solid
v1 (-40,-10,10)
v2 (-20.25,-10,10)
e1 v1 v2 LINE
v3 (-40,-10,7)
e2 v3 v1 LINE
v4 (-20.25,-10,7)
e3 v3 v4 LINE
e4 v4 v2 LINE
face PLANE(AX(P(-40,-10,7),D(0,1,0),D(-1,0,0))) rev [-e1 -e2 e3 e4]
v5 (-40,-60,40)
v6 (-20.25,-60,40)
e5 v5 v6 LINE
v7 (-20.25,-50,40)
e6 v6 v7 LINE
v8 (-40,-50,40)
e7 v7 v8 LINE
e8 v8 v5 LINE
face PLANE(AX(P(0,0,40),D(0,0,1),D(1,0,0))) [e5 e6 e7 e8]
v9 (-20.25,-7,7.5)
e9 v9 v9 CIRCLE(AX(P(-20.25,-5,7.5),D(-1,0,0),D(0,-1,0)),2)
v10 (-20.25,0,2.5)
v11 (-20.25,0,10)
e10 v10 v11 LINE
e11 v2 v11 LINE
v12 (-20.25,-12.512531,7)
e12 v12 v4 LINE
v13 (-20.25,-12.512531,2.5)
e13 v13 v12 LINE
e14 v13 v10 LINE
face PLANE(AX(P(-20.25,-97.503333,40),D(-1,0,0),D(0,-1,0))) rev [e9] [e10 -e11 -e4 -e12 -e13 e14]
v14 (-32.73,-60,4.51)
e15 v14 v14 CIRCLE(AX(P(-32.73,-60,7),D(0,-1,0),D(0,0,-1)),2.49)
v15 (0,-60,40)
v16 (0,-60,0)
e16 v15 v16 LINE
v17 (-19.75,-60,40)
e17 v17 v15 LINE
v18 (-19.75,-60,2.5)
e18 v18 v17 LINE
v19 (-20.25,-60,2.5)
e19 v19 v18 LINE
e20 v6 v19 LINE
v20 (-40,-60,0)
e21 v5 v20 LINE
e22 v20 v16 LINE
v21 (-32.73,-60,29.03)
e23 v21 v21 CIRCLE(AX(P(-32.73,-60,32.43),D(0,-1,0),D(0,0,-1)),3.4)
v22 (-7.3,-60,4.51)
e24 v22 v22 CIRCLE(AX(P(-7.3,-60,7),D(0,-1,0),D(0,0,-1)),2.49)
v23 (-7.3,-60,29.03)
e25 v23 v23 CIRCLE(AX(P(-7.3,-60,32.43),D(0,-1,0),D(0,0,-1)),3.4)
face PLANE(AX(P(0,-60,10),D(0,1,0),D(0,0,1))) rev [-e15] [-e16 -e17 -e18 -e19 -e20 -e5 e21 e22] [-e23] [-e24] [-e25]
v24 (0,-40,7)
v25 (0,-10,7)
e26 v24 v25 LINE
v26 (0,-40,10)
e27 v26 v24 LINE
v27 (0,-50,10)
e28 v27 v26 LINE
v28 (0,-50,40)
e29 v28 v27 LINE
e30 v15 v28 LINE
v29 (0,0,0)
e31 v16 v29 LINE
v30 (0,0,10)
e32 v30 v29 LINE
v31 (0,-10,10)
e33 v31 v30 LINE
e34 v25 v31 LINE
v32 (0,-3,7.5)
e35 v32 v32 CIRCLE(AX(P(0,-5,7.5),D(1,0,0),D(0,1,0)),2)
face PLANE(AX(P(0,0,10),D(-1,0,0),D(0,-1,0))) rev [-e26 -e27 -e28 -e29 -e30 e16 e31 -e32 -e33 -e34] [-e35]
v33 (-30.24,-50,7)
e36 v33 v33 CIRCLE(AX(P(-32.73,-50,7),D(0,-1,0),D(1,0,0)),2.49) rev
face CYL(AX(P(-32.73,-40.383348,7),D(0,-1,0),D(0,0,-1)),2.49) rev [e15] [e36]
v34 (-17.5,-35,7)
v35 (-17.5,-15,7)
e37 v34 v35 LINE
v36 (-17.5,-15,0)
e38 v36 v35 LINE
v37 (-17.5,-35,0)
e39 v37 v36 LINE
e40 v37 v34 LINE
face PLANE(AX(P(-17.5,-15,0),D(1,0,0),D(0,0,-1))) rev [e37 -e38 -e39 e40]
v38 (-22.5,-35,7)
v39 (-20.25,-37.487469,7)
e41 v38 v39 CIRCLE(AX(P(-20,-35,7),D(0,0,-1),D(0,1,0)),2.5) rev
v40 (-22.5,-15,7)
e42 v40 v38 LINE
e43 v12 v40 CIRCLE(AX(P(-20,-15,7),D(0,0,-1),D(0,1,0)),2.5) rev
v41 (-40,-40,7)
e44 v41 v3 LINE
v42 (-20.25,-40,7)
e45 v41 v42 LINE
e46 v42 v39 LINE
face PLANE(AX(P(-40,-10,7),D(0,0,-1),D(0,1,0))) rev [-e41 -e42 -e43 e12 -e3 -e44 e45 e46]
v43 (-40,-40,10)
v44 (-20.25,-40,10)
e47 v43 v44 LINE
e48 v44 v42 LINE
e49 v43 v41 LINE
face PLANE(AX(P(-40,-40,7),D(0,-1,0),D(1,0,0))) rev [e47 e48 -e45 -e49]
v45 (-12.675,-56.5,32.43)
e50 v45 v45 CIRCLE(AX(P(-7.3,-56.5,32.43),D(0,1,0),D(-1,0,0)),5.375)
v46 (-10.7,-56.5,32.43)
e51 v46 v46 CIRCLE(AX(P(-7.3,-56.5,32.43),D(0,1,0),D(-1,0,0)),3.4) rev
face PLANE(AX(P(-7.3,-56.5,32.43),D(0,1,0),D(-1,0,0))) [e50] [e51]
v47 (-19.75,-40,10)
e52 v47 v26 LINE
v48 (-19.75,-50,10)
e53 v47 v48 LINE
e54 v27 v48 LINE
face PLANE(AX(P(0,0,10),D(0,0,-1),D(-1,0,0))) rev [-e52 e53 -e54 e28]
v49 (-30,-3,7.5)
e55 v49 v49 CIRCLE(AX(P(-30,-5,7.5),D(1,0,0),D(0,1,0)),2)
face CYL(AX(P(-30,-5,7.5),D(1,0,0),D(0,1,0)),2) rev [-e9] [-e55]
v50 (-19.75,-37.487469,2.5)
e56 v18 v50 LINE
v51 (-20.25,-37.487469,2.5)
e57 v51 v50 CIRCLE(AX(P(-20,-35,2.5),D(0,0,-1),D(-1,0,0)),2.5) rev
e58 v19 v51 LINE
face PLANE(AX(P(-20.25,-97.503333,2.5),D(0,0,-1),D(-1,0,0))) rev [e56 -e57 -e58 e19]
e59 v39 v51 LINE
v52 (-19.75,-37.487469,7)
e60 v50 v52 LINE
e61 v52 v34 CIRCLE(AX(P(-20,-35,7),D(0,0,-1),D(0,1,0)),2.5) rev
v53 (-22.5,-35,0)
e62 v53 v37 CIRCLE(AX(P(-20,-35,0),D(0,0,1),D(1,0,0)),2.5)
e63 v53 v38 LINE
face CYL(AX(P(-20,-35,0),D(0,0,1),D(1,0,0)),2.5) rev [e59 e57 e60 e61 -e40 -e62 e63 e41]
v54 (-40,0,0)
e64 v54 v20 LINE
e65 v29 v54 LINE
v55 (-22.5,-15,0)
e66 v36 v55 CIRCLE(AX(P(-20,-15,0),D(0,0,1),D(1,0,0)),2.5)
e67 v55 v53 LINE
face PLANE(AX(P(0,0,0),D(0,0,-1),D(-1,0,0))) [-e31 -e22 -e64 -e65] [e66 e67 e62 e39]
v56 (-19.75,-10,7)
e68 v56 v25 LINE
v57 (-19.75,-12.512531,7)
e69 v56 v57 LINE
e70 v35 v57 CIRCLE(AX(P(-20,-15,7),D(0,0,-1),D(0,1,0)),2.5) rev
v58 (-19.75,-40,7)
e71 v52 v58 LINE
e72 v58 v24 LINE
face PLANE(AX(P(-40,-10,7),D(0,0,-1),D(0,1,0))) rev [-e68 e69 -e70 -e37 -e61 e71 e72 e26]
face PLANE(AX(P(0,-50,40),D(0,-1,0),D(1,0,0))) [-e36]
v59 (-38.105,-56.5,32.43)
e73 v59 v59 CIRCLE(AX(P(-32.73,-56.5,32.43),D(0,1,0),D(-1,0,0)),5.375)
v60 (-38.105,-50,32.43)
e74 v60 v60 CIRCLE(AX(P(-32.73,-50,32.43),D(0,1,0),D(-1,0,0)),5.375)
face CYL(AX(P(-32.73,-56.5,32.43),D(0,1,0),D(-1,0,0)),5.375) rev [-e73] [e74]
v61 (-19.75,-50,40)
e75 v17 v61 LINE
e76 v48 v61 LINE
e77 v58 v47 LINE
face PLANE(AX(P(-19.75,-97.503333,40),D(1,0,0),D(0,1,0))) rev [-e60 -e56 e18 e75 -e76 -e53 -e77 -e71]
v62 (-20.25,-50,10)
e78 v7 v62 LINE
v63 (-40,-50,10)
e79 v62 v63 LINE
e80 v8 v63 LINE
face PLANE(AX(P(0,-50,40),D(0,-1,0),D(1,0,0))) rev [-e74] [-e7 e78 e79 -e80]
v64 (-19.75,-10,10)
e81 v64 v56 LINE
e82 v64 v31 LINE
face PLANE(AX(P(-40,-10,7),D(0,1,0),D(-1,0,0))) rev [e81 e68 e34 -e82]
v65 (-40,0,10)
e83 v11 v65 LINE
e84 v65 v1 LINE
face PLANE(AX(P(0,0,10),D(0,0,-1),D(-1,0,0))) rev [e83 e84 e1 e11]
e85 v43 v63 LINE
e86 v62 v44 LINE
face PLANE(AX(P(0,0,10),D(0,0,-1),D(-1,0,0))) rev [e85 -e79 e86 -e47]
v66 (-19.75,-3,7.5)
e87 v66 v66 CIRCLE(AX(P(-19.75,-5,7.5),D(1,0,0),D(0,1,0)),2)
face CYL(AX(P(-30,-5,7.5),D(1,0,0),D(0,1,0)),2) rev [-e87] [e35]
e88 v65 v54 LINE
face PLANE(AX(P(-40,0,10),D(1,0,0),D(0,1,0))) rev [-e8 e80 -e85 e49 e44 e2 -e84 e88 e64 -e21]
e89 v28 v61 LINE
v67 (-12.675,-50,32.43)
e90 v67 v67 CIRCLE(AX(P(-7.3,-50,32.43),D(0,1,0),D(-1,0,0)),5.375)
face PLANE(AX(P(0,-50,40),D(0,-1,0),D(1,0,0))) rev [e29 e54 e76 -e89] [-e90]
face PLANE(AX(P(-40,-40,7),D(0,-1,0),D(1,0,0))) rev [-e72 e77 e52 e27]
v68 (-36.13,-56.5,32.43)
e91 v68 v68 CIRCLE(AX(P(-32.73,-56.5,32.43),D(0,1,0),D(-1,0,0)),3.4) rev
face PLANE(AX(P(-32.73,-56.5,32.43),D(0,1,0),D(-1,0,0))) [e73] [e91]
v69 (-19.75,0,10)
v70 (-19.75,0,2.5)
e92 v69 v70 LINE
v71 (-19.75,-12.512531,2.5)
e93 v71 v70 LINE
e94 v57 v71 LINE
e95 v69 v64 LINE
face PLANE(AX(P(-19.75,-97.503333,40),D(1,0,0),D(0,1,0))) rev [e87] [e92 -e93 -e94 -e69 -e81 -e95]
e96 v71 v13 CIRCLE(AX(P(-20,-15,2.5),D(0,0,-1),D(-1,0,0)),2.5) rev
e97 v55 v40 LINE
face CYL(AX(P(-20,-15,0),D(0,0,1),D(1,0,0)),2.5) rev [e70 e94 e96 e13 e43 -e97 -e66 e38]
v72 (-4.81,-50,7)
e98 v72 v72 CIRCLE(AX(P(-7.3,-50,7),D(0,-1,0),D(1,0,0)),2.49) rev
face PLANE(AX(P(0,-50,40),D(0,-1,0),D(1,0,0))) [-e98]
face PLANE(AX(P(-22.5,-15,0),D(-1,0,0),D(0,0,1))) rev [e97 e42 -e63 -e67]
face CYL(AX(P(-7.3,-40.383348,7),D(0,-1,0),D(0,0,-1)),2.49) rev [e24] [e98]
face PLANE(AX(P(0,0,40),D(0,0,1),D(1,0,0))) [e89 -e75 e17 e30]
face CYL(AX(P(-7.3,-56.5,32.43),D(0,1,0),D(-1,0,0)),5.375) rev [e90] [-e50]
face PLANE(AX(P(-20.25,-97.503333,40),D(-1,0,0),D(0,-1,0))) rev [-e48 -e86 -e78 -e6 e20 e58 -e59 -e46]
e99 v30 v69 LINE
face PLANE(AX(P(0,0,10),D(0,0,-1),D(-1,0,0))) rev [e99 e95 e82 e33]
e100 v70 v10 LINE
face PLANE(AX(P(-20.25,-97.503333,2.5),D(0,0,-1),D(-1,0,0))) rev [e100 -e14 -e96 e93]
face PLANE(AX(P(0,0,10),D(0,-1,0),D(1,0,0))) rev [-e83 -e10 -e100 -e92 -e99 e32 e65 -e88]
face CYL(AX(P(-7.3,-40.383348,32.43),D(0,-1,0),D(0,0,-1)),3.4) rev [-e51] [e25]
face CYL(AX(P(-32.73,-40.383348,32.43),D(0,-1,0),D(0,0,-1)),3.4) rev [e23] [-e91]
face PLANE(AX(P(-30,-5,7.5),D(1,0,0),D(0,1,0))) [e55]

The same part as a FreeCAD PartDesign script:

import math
import FreeCAD as App
import Part
import Sketcher
Q = App.Units.Quantity


def add_polygon(sketch, points):
    """Adds a closed chain of lines whose ends are joined by coincident constraints."""
    first, n = sketch.GeometryCount, len(points)
    for a, b in zip(points, points[1:] + points[:1]):
        sketch.addGeometry(Part.LineSegment(App.Vector(*a, 0), App.Vector(*b, 0)), False)
    for i in range(n):
        sketch.addConstraint(Sketcher.Constraint("Coincident", first + i, 2, first + (i + 1) % n, 1))

doc = App.newDocument("Part")
body = doc.addObject("PartDesign::Body", "Body")

# Sketch on XY plane
sketch1 = body.newObject("Sketcher::SketchObject", "Sketch")
sketch1.AttachmentSupport = (doc.getObject("XY_Plane"), [""])
sketch1.MapMode = "FlatFace"
add_polygon(sketch1, [(-40, 0), (-40, -60), (0, -60), (0, 0)])  # lines 0-3
sketch1.addConstraint([
    Sketcher.Constraint("Vertical", 0),
    Sketcher.Constraint("Horizontal", 1),
    Sketcher.Constraint("Vertical", 2),
    Sketcher.Constraint("Horizontal", 3),
    Sketcher.Constraint("Coincident", 2, 2, -1, 1),
    Sketcher.Constraint("DistanceX", 1, 1, 1, 2, Q("40 mm")),
    Sketcher.Constraint("DistanceY", 0, 2, 0, 1, Q("60 mm")),
])
pad1 = body.newObject("PartDesign::Pad", "Pad")
pad1.Profile = sketch1
pad1.Length = 10

# Sketch on XY plane
sketch2 = body.newObject("Sketcher::SketchObject", "Sketch001")
sketch2.AttachmentSupport = (doc.getObject("XY_Plane"), [""])
sketch2.MapMode = "FlatFace"
sketch2.AttachmentOffset = App.Placement(App.Vector(0, 0, 10), App.Rotation())
sketch2.addGeometry([
    Part.LineSegment(App.Vector(-17.5, -35, 0), App.Vector(-17.5, -15, 0)),
    Part.ArcOfCircle(Part.Circle(App.Vector(-20, -15, 0), App.Vector(0, 0, 1), 2.5), math.radians(0), math.radians(180)),
    Part.LineSegment(App.Vector(-22.5, -15, 0), App.Vector(-22.5, -35, 0)),
    Part.ArcOfCircle(Part.Circle(App.Vector(-20, -35, 0), App.Vector(0, 0, 1), 2.5), math.radians(180), math.radians(360)),
], False)
sketch2.addConstraint([
    Sketcher.Constraint("Tangent", 0, 2, 1, 1),
    Sketcher.Constraint("Tangent", 1, 2, 2, 1),
    Sketcher.Constraint("Tangent", 2, 2, 3, 1),
    Sketcher.Constraint("Tangent", 3, 2, 0, 1),
    Sketcher.Constraint("Vertical", 0),
    Sketcher.Constraint("Vertical", 2),
    Sketcher.Constraint("Radius", 1, Q("2.5 mm")),
    Sketcher.Constraint("DistanceY", 0, 1, 0, 2, Q("20 mm")),
    Sketcher.Constraint("DistanceX", 1, 3, -1, 1, Q("20 mm")),
    Sketcher.Constraint("DistanceY", 1, 3, -1, 1, Q("15 mm")),
])
pocket1 = body.newObject("PartDesign::Pocket", "Pocket")
pocket1.Profile = sketch2
pocket1.Type = "ThroughAll"

# Sketch on YZ plane
sketch3 = body.newObject("Sketcher::SketchObject", "Sketch002")
sketch3.AttachmentSupport = (doc.getObject("YZ_Plane"), [""])
sketch3.MapMode = "FlatFace"
add_polygon(sketch3, [(-10, 10), (-40, 10), (-40, 7), (-10, 7)])  # lines 0-3
sketch3.addConstraint([
    Sketcher.Constraint("Horizontal", 0),
    Sketcher.Constraint("Vertical", 1),
    Sketcher.Constraint("Horizontal", 2),
    Sketcher.Constraint("Vertical", 3),
    Sketcher.Constraint("DistanceX", 0, 2, 0, 1, Q("30 mm")),
    Sketcher.Constraint("DistanceY", 1, 2, 1, 1, Q("3 mm")),
    Sketcher.Constraint("DistanceX", 0, 2, -1, 1, Q("40 mm")),
    Sketcher.Constraint("DistanceY", -1, 1, 0, 2, Q("10 mm")),
])
pocket2 = body.newObject("PartDesign::Pocket", "Pocket001")
pocket2.Profile = sketch3
pocket2.Type = "ThroughAll"

# Sketch on XY plane
sketch4 = body.newObject("Sketcher::SketchObject", "Sketch003")
sketch4.AttachmentSupport = (doc.getObject("XY_Plane"), [""])
sketch4.MapMode = "FlatFace"
sketch4.AttachmentOffset = App.Placement(App.Vector(0, 0, 10), App.Rotation())
add_polygon(sketch4, [(-40, -50), (-40, -60), (0, -60), (0, -50)])  # lines 0-3
sketch4.addConstraint([
    Sketcher.Constraint("Vertical", 0),
    Sketcher.Constraint("Horizontal", 1),
    Sketcher.Constraint("Vertical", 2),
    Sketcher.Constraint("Horizontal", 3),
    Sketcher.Constraint("PointOnObject", 1, 2, -2),
    Sketcher.Constraint("DistanceX", 1, 1, 1, 2, Q("40 mm")),
    Sketcher.Constraint("DistanceY", 0, 2, 0, 1, Q("10 mm")),
    Sketcher.Constraint("DistanceY", 0, 2, -1, 1, Q("60 mm")),
])
pad2 = body.newObject("PartDesign::Pad", "Pad001")
pad2.Profile = sketch4
pad2.Length = 30

# Sketch on XZ plane
sketch5 = body.newObject("Sketcher::SketchObject", "Sketch004")
sketch5.AttachmentSupport = (doc.getObject("XZ_Plane"), [""])
sketch5.MapMode = "FlatFace"
add_polygon(sketch5, [(-20.25, 2.5), (-20.25, 40), (-19.75, 40), (-19.75, 2.5)])  # lines 0-3
sketch5.addConstraint([
    Sketcher.Constraint("Vertical", 0),
    Sketcher.Constraint("Horizontal", 1),
    Sketcher.Constraint("Vertical", 2),
    Sketcher.Constraint("Horizontal", 3),
    Sketcher.Constraint("DistanceX", 1, 1, 1, 2, Q("0.5 mm")),
    Sketcher.Constraint("DistanceY", 0, 1, 0, 2, Q("37.5 mm")),
    Sketcher.Constraint("DistanceY", -1, 1, 0, 2, Q("40 mm")),
    Sketcher.Constraint("DistanceX", 0, 2, -1, 1, Q("20.25 mm")),
])
pocket3 = body.newObject("PartDesign::Pocket", "Pocket002")
pocket3.Profile = sketch5
pocket3.Length = 60
pocket3.Reversed = True

# Sketch on YZ plane
sketch6 = body.newObject("Sketcher::SketchObject", "Sketch005")
sketch6.AttachmentSupport = (doc.getObject("YZ_Plane"), [""])
sketch6.MapMode = "FlatFace"
sketch6.addGeometry(Part.Circle(App.Vector(-5, 7.5, 0), App.Vector(0, 0, 1), 2), False)
sketch6.addConstraint([
    Sketcher.Constraint("Diameter", 0, Q("4 mm")),
    Sketcher.Constraint("DistanceX", 0, 3, -1, 1, Q("5 mm")),
    Sketcher.Constraint("DistanceY", -1, 1, 0, 3, Q("7.5 mm")),
])
pocket4 = body.newObject("PartDesign::Pocket", "Pocket003")
pocket4.Profile = sketch6
pocket4.Length = 30

# Sketch on XZ plane
sketch7 = body.newObject("Sketcher::SketchObject", "Sketch006")
sketch7.AttachmentSupport = (doc.getObject("XZ_Plane"), [""])
sketch7.MapMode = "FlatFace"
sketch7.AttachmentOffset = App.Placement(App.Vector(0, 0, 60), App.Rotation())
sketch7.addGeometry([
    Part.Circle(App.Vector(-7.3, 32.43, 0), App.Vector(0, 0, 1), 3.4),
    Part.Circle(App.Vector(-32.73, 32.43, 0), App.Vector(0, 0, 1), 3.4),
    Part.Circle(App.Vector(-32.73, 7, 0), App.Vector(0, 0, 1), 2.49),
    Part.Circle(App.Vector(-7.3, 7, 0), App.Vector(0, 0, 1), 2.49),
], False)
sketch7.addConstraint([
    Sketcher.Constraint("Equal", 0, 1),
    Sketcher.Constraint("Equal", 2, 3),
    Sketcher.Constraint("Horizontal", 0, 3, 1, 3),
    Sketcher.Constraint("Horizontal", 2, 3, 3, 3),
    Sketcher.Constraint("Vertical", 1, 3, 2, 3),
    Sketcher.Constraint("Vertical", 0, 3, 3, 3),
    Sketcher.Constraint("Diameter", 0, Q("6.8 mm")),
    Sketcher.Constraint("Diameter", 2, Q("4.98 mm")),
    Sketcher.Constraint("DistanceY", -1, 1, 2, 3, Q("7 mm")),
    Sketcher.Constraint("DistanceX", 0, 3, -1, 1, Q("7.3 mm")),
    Sketcher.Constraint("DistanceY", -1, 1, 0, 3, Q("32.43 mm")),
    Sketcher.Constraint("DistanceX", 1, 3, -1, 1, Q("32.73 mm")),
])
pocket5 = body.newObject("PartDesign::Pocket", "Pocket004")
pocket5.Profile = sketch7
pocket5.Length = 10

# Sketch on XZ plane
sketch8 = body.newObject("Sketcher::SketchObject", "Sketch007")
sketch8.AttachmentSupport = (doc.getObject("XZ_Plane"), [""])
sketch8.MapMode = "FlatFace"
sketch8.AttachmentOffset = App.Placement(App.Vector(0, 0, 50), App.Rotation())
sketch8.addGeometry([
    Part.Circle(App.Vector(-32.73, 32.43, 0), App.Vector(0, 0, 1), 5.375),
    Part.Circle(App.Vector(-7.3, 32.43, 0), App.Vector(0, 0, 1), 5.375),
], False)
sketch8.addConstraint([
    Sketcher.Constraint("Equal", 0, 1),
    Sketcher.Constraint("Horizontal", 0, 3, 1, 3),
    Sketcher.Constraint("Diameter", 0, Q("10.75 mm")),
    Sketcher.Constraint("DistanceX", 1, 3, -1, 1, Q("7.3 mm")),
    Sketcher.Constraint("DistanceX", 0, 3, -1, 1, Q("32.73 mm")),
    Sketcher.Constraint("DistanceY", -1, 1, 0, 3, Q("32.43 mm")),
])
pocket6 = body.newObject("PartDesign::Pocket", "Pocket005")
pocket6.Profile = sketch8
pocket6.Length = 6.5
pocket6.Reversed = True

doc.recompute()
